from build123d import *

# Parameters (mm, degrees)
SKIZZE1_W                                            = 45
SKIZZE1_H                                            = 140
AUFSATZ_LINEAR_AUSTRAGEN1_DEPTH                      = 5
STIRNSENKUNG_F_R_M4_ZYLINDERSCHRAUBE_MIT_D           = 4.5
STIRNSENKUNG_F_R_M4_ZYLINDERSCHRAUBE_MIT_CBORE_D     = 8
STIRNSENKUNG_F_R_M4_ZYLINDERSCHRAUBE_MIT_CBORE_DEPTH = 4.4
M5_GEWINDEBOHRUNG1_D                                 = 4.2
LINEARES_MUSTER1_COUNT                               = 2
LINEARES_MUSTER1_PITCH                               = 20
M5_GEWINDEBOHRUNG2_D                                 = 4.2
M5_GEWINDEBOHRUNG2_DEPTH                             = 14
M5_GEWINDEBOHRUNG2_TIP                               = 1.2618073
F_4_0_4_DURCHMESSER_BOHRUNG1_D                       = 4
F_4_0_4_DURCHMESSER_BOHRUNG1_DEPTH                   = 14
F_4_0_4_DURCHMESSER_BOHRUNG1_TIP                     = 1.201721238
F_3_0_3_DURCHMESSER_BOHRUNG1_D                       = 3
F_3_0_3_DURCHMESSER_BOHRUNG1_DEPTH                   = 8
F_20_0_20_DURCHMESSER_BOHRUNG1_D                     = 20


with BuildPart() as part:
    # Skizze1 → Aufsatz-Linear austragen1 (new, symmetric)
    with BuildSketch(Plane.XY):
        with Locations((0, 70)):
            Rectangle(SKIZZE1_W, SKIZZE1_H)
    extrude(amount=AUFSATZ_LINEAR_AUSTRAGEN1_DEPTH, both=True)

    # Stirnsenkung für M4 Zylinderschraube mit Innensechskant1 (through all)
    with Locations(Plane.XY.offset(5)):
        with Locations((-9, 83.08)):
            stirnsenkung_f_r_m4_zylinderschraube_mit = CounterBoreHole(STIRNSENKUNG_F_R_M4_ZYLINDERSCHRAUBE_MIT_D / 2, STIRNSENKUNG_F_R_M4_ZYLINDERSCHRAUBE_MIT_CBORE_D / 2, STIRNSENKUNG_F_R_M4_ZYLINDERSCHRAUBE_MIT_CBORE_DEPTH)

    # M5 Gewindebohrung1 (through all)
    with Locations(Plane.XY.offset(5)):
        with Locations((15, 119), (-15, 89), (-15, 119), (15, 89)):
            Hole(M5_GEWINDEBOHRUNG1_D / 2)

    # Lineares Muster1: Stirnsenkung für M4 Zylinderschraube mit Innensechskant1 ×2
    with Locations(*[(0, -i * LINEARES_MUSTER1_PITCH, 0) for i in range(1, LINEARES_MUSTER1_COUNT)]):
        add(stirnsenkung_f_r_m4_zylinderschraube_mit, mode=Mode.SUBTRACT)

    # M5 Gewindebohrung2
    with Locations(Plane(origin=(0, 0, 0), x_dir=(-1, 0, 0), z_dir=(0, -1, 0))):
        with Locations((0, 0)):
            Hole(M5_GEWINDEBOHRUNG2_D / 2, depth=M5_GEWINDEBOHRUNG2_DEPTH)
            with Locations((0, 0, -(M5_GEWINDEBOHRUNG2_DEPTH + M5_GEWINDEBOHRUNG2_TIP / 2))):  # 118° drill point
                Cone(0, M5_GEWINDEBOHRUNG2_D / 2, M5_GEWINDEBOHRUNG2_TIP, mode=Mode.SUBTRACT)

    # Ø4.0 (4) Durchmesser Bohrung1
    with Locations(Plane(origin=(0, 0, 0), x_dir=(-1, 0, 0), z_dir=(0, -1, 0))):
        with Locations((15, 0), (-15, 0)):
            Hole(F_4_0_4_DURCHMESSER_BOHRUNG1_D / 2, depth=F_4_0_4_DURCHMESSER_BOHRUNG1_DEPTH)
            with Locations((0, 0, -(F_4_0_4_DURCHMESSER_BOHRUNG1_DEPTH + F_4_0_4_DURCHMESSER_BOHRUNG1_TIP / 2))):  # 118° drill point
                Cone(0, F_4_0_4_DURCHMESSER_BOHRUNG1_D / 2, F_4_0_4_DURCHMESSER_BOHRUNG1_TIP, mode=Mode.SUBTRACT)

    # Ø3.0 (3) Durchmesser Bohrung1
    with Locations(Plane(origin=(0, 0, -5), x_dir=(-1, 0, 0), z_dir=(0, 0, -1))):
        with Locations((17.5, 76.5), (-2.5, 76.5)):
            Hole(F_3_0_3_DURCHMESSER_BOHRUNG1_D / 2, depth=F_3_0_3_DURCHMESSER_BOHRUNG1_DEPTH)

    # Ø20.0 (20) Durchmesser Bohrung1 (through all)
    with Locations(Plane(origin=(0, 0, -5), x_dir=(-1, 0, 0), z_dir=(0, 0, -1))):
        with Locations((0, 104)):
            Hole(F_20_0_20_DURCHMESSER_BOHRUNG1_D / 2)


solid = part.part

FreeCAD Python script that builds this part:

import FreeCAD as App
import Part
import Sketcher
Q = App.Units.Quantity

doc = App.newDocument("Part")
body = doc.addObject("PartDesign::Body", "Body")

# Sketch on XY plane
sketch1 = body.newObject("Sketcher::SketchObject", "Sketch")
sketch1.AttachmentSupport = (doc.getObject("XY_Plane"), [""])
sketch1.MapMode = "FlatFace"
sketch1.addGeometry(Part.LineSegment(App.Vector(-22, 140, 0), App.Vector(-22, 0, 0)), False)
sketch1.addGeometry(Part.LineSegment(App.Vector(-22, 0, 0), App.Vector(22, 0, 0)), False)
sketch1.addGeometry(Part.LineSegment(App.Vector(22, 0, 0), App.Vector(22, 140, 0)), False)
sketch1.addGeometry(Part.LineSegment(App.Vector(22, 140, 0), App.Vector(-22, 140, 0)), False)
sketch1.addConstraint(Sketcher.Constraint("Coincident", 0, 2, 1, 1))
sketch1.addConstraint(Sketcher.Constraint("Coincident", 1, 2, 2, 1))
sketch1.addConstraint(Sketcher.Constraint("Coincident", 2, 2, 3, 1))
sketch1.addConstraint(Sketcher.Constraint("Coincident", 3, 2, 0, 1))
sketch1.addConstraint(Sketcher.Constraint("Vertical", 0))
sketch1.addConstraint(Sketcher.Constraint("Horizontal", 1))
sketch1.addConstraint(Sketcher.Constraint("Vertical", 2))
sketch1.addConstraint(Sketcher.Constraint("Horizontal", 3))
sketch1.addConstraint(Sketcher.Constraint("Symmetric", 0, 2, 1, 2, -1, 1))
sketch1.addConstraint(Sketcher.Constraint("DistanceX", 1, 1, 1, 2, Q("45 mm")))
sketch1.addConstraint(Sketcher.Constraint("DistanceY", 0, 2, 0, 1, Q("140 mm")))
pad1 = body.newObject("PartDesign::Pad", "Pad")
pad1.Profile = sketch1
pad1.Length = 10
pad1.Midplane = True

# Sketch on XY plane
sketch2 = body.newObject("Sketcher::SketchObject", "Sketch001")
sketch2.AttachmentSupport = (doc.getObject("XY_Plane"), [""])
sketch2.MapMode = "FlatFace"
sketch2.AttachmentOffset = App.Placement(App.Vector(0, 0, 5), App.Rotation())
sketch2.addGeometry(Part.Circle(App.Vector(-9, 83.1, 0), App.Vector(0, 0, 1), 2.2), False)
sketch2.addConstraint(Sketcher.Constraint("Diameter", 0, Q("4.5 mm")))
sketch2.addConstraint(Sketcher.Constraint("DistanceX", 0, 3, -1, 1, Q("9 mm")))
sketch2.addConstraint(Sketcher.Constraint("DistanceY", -1, 1, 0, 3, Q("83.08 mm")))
doc.recompute()
hole = body.newObject("PartDesign::Hole", "Hole")
hole.Profile = sketch2
hole.ThreadType = "None"
hole.Diameter = 4.5
hole.DepthType = "ThroughAll"
hole.HoleCutType = "Counterbore"
hole.HoleCutDiameter = 8
hole.HoleCutDepth = 4.4

# Sketch on XY plane
sketch3 = body.newObject("Sketcher::SketchObject", "Sketch002")
sketch3.AttachmentSupport = (doc.getObject("XY_Plane"), [""])
sketch3.MapMode = "FlatFace"
sketch3.AttachmentOffset = App.Placement(App.Vector(0, 0, 5), App.Rotation())
sketch3.addGeometry(Part.Circle(App.Vector(15, 119, 0), App.Vector(0, 0, 1), 2.1), False)
sketch3.addGeometry(Part.Circle(App.Vector(-15, 89, 0), App.Vector(0, 0, 1), 2.1), False)
sketch3.addGeometry(Part.Circle(App.Vector(-15, 119, 0), App.Vector(0, 0, 1), 2.1), False)
sketch3.addGeometry(Part.Circle(App.Vector(15, 89, 0), App.Vector(0, 0, 1), 2.1), False)
sketch3.addConstraint(Sketcher.Constraint("Equal", 0, 1))
sketch3.addConstraint(Sketcher.Constraint("Equal", 1, 2))
sketch3.addConstraint(Sketcher.Constraint("Equal", 2, 3))
sketch3.addConstraint(Sketcher.Constraint("Symmetric", 0, 3, 2, 3, -2))
sketch3.addConstraint(Sketcher.Constraint("Symmetric", 1, 3, 3, 3, -2))
sketch3.addConstraint(Sketcher.Constraint("Vertical", 1, 3, 2, 3))
sketch3.addConstraint(Sketcher.Constraint("Diameter", 0, Q("4.2 mm")))
sketch3.addConstraint(Sketcher.Constraint("DistanceX", -1, 1, 0, 3, Q("15 mm")))
sketch3.addConstraint(Sketcher.Constraint("DistanceY", -1, 1, 0, 3, Q("119 mm")))
sketch3.addConstraint(Sketcher.Constraint("DistanceY", -1, 1, 1, 3, Q("89 mm")))
doc.recompute()
hole2 = body.newObject("PartDesign::Hole", "Hole001")
hole2.Profile = sketch3
hole2.ThreadType = "None"
hole2.Diameter = 4.2
hole2.DepthType = "ThroughAll"
doc.recompute()

linearpattern = body.newObject("PartDesign::LinearPattern", "LinearPattern")
linearpattern.Originals = [hole]
linearpattern.Direction = (doc.getObject("Y_Axis"), [""])
linearpattern.Mode = "offset"
linearpattern.Offset = 20
linearpattern.Occurrences = 2
linearpattern.Reversed = True
body.Tip = linearpattern

# Sketch on XZ plane
sketch4 = body.newObject("Sketcher::SketchObject", "Sketch003")
sketch4.AttachmentSupport = (doc.getObject("XZ_Plane"), [""])
sketch4.MapMode = "FlatFace"
sketch4.addGeometry(Part.Circle(App.Vector(0, 0, 0), App.Vector(0, 0, 1), 2.1), False)
sketch4.addConstraint(Sketcher.Constraint("Coincident", 0, 3, -1, 1))
sketch4.addConstraint(Sketcher.Constraint("Diameter", 0, Q("4.2 mm")))
doc.recompute()
hole3 = body.newObject("PartDesign::Hole", "Hole002")
hole3.Profile = sketch4
hole3.ThreadType = "None"
hole3.Diameter = 4.2
hole3.DepthType = "Dimension"
hole3.Depth = 14
hole3.DrillPoint = "Angled"
hole3.DrillPointAngle = 118

# Sketch on XZ plane
sketch5 = body.newObject("Sketcher::SketchObject", "Sketch004")
sketch5.AttachmentSupport = (doc.getObject("XZ_Plane"), [""])
sketch5.MapMode = "FlatFace"
sketch5.addGeometry(Part.Circle(App.Vector(-15, 0, 0), App.Vector(0, 0, 1), 2), False)
sketch5.addGeometry(Part.Circle(App.Vector(15, 0, 0), App.Vector(0, 0, 1), 2), False)
sketch5.addConstraint(Sketcher.Constraint("Equal", 0, 1))
sketch5.addConstraint(Sketcher.Constraint("Symmetric", 0, 3, 1, 3, -1, 1))
sketch5.addConstraint(Sketcher.Constraint("PointOnObject", 0, 3, -1))
sketch5.addConstraint(Sketcher.Constraint("Diameter", 0, Q("4 mm")))
sketch5.addConstraint(Sketcher.Constraint("DistanceX", 0, 3, -1, 1, Q("15 mm")))
doc.recompute()
hole4 = body.newObject("PartDesign::Hole", "Hole003")
hole4.Profile = sketch5
hole4.ThreadType = "None"
hole4.Diameter = 4
hole4.DepthType = "Dimension"
hole4.Depth = 14
hole4.DrillPoint = "Angled"
hole4.DrillPointAngle = 118

# Sketch on XY plane
sketch6 = body.newObject("Sketcher::SketchObject", "Sketch005")
sketch6.AttachmentSupport = (doc.getObject("XY_Plane"), [""])
sketch6.MapMode = "FlatFace"
sketch6.AttachmentOffset = App.Placement(App.Vector(0, 0, -5), App.Rotation())
sketch6.addGeometry(Part.Circle(App.Vector(-17.5, 76.5, 0), App.Vector(0, 0, 1), 1.5), False)
sketch6.addGeometry(Part.Circle(App.Vector(2.5, 76.5, 0), App.Vector(0, 0, 1), 1.5), False)
sketch6.addConstraint(Sketcher.Constraint("Equal", 0, 1))
sketch6.addConstraint(Sketcher.Constraint("Horizontal", 0, 3, 1, 3))
sketch6.addConstraint(Sketcher.Constraint("Diameter", 0, Q("3 mm")))
sketch6.addConstraint(Sketcher.Constraint("DistanceX", 0, 3, 1, 3, Q("20 mm")))
sketch6.addConstraint(Sketcher.Constraint("DistanceX", 0, 3, -1, 1, Q("17.5 mm")))
sketch6.addConstraint(Sketcher.Constraint("DistanceY", -1, 1, 0, 3, Q("76.5 mm")))
doc.recompute()
hole5 = body.newObject("PartDesign::Hole", "Hole004")
hole5.Profile = sketch6
hole5.ThreadType = "None"
hole5.Diameter = 3
hole5.DepthType = "Dimension"
hole5.Depth = 8
hole5.DrillPoint = "Flat"
hole5.Reversed = True

# Sketch on XY plane
sketch7 = body.newObject("Sketcher::SketchObject", "Sketch006")
sketch7.AttachmentSupport = (doc.getObject("XY_Plane"), [""])
sketch7.MapMode = "FlatFace"
sketch7.AttachmentOffset = App.Placement(App.Vector(0, 0, -5), App.Rotation())
sketch7.addGeometry(Part.Circle(App.Vector(0, 104, 0), App.Vector(0, 0, 1), 10), False)
sketch7.addConstraint(Sketcher.Constraint("PointOnObject", 0, 3, -2))
sketch7.addConstraint(Sketcher.Constraint("Diameter", 0, Q("20 mm")))
sketch7.addConstraint(Sketcher.Constraint("DistanceY", -1, 1, 0, 3, Q("104 mm")))
doc.recompute()
hole6 = body.newObject("PartDesign::Hole", "Hole005")
hole6.Profile = sketch7
hole6.ThreadType = "None"
hole6.Diameter = 20
hole6.DepthType = "ThroughAll"
hole6.Reversed = True

doc.recompute()
